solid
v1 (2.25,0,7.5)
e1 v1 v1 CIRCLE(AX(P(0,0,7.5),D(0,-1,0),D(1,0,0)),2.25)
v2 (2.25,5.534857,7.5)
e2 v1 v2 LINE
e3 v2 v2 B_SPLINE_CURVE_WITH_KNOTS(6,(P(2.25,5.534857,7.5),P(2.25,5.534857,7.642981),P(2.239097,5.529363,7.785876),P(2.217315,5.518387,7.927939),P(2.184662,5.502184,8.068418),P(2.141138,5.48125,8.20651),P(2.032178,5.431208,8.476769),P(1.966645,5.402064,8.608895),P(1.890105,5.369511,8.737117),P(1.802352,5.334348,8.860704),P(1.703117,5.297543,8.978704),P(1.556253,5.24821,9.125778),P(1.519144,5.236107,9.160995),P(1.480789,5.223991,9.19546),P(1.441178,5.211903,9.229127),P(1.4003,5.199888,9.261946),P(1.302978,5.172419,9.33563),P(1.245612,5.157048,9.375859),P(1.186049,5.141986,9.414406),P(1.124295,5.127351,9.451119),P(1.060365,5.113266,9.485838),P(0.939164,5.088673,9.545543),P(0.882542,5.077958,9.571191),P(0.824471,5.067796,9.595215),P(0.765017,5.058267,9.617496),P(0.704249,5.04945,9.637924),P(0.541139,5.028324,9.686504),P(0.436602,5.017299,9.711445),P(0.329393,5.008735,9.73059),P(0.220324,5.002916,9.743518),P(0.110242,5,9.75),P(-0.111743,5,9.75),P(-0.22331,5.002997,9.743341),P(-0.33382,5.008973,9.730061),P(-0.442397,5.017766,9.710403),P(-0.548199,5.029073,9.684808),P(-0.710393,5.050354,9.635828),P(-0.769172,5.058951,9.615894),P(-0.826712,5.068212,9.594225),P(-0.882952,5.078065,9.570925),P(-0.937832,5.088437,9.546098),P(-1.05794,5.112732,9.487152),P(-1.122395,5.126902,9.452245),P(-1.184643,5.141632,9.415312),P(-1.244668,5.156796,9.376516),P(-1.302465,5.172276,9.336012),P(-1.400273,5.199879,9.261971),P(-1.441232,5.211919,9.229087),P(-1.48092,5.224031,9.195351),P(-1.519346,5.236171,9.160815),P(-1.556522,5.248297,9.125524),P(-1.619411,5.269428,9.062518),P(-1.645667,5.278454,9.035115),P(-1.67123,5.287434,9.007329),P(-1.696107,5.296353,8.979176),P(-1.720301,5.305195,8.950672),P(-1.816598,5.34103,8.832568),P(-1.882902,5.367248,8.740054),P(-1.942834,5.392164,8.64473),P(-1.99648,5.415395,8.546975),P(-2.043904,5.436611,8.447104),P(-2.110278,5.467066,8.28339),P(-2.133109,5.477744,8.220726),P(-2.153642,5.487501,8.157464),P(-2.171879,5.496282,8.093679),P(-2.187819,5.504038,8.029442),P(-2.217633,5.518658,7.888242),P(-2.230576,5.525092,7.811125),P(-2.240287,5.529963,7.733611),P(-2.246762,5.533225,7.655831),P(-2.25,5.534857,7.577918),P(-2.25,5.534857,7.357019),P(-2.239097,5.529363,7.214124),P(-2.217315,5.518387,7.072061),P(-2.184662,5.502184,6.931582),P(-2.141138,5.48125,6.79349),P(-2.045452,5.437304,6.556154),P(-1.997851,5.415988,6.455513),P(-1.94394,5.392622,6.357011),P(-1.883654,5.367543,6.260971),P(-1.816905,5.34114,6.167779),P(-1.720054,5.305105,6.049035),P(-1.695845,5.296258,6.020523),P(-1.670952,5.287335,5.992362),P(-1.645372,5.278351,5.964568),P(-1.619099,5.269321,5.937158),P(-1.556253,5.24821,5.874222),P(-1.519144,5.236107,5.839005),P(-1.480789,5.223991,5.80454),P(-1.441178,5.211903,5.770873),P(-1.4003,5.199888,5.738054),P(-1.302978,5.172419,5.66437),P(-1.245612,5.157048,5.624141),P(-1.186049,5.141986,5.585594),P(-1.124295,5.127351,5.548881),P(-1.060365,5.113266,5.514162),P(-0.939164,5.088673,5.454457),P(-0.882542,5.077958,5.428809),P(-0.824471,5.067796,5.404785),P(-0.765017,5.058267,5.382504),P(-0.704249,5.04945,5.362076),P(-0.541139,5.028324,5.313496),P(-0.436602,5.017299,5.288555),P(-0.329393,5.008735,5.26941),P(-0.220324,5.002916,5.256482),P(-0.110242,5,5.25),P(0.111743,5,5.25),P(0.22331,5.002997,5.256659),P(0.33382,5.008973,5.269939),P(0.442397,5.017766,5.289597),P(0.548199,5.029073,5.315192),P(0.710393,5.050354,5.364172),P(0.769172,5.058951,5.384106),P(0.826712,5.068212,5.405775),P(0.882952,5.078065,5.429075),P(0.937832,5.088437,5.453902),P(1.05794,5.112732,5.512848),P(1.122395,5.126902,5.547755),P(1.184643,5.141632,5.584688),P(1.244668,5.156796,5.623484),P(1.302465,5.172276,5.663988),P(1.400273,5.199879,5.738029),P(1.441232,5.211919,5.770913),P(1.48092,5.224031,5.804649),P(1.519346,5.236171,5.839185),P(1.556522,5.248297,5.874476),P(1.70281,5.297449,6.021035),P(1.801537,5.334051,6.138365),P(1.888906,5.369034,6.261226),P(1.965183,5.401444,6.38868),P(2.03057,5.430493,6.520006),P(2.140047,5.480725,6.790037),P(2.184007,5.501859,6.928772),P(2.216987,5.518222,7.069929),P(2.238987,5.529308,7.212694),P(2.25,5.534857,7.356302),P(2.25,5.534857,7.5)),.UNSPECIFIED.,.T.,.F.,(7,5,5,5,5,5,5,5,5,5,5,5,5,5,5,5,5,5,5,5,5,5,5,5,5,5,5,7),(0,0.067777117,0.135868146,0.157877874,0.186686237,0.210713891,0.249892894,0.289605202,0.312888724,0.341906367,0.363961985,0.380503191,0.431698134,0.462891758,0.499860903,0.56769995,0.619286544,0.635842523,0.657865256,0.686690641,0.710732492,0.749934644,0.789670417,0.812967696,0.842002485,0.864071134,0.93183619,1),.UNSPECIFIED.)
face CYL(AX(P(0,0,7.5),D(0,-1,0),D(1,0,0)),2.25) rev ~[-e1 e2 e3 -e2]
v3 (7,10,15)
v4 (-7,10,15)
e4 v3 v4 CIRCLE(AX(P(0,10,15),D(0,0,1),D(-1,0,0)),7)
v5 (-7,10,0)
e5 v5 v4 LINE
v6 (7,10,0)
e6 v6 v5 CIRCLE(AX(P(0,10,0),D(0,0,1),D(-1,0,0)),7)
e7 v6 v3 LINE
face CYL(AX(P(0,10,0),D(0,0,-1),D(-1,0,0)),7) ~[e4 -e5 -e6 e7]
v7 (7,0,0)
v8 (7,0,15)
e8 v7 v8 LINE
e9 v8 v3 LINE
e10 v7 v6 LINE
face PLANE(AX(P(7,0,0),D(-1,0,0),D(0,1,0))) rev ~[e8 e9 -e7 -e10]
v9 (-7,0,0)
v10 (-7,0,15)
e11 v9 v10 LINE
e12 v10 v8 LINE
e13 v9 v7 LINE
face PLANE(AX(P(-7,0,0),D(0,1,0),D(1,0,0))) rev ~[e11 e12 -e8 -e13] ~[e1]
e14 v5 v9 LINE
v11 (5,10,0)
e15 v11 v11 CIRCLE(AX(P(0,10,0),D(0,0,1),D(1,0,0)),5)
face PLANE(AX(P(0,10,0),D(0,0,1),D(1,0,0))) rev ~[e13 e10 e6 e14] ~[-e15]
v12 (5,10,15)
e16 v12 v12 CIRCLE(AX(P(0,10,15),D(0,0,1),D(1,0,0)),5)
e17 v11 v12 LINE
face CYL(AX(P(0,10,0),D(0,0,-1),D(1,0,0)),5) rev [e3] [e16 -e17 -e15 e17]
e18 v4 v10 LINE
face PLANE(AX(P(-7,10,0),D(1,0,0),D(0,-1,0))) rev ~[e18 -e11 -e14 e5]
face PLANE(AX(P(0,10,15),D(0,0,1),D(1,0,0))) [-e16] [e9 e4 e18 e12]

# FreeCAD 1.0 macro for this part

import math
import FreeCAD as App
import Part
import Sketcher

V = App.Vector

doc = App.newDocument("Part")
body = doc.addObject("PartDesign::Body", "Body")

# Sketch on XY plane
sketch1 = body.newObject("Sketcher::SketchObject", "Sketch")
sketch1.AttachmentSupport = (doc.getObject("XY_Plane"), [""])
sketch1.MapMode = "FlatFace"
sketch1.addGeometry(Part.ArcOfCircle(Part.Circle(V(0, 10, 0), V(0, 0, 1), 7), math.radians(0), math.radians(180)), False)
sketch1.addGeometry(Part.LineSegment(V(-7, 10, 0), V(-7, 0, 0)), False)
sketch1.addGeometry(Part.LineSegment(V(-7, 0, 0), V(7, 0, 0)), False)
sketch1.addGeometry(Part.LineSegment(V(7, 0, 0), V(7, 10, 0)), False)
sketch1.addGeometry(Part.Circle(V(0, 10, 0), V(0, 0, 1), 5), False)
sketch1.addConstraint(Sketcher.Constraint("Tangent", 0, 2, 1, 1))
sketch1.addConstraint(Sketcher.Constraint("Coincident", 1, 2, 2, 1))
sketch1.addConstraint(Sketcher.Constraint("Coincident", 2, 2, 3, 1))
sketch1.addConstraint(Sketcher.Constraint("Tangent", 3, 2, 0, 1))
sketch1.addConstraint(Sketcher.Constraint("Vertical", 1))
sketch1.addConstraint(Sketcher.Constraint("Horizontal", 2))
sketch1.addConstraint(Sketcher.Constraint("Vertical", 3))
sketch1.addConstraint(Sketcher.Constraint("Coincident", 4, 3, 0, 3))
sketch1.addConstraint(Sketcher.Constraint("Symmetric", 1, 2, 2, 2, -1, 1))
sketch1.addConstraint(Sketcher.Constraint("Diameter", 4, 10.0))
sketch1.addConstraint(Sketcher.Constraint("Radius", 0, 7.0))
sketch1.addConstraint(Sketcher.Constraint("DistanceY", 1, 2, 1, 1, 10.0))
pad1 = body.newObject("PartDesign::Pad", "Pad")
pad1.Profile = sketch1
pad1.Length = 15

# Sketch on XZ plane
sketch2 = body.newObject("Sketcher::SketchObject", "Sketch001")
sketch2.AttachmentSupport = (doc.getObject("XZ_Plane"), [""])
sketch2.MapMode = "FlatFace"
sketch2.addGeometry(Part.Circle(V(0, 7.5, 0), V(0, 0, 1), 2.25), False)
sketch2.addConstraint(Sketcher.Constraint("PointOnObject", 0, 3, -2))
sketch2.addConstraint(Sketcher.Constraint("Diameter", 0, 4.5))
sketch2.addConstraint(Sketcher.Constraint("DistanceY", -1, 1, 0, 3, 7.5))
pocket1 = body.newObject("PartDesign::Pocket", "Pocket")
pocket1.Profile = sketch2
pocket1.Length = 5.535857

doc.recompute()
